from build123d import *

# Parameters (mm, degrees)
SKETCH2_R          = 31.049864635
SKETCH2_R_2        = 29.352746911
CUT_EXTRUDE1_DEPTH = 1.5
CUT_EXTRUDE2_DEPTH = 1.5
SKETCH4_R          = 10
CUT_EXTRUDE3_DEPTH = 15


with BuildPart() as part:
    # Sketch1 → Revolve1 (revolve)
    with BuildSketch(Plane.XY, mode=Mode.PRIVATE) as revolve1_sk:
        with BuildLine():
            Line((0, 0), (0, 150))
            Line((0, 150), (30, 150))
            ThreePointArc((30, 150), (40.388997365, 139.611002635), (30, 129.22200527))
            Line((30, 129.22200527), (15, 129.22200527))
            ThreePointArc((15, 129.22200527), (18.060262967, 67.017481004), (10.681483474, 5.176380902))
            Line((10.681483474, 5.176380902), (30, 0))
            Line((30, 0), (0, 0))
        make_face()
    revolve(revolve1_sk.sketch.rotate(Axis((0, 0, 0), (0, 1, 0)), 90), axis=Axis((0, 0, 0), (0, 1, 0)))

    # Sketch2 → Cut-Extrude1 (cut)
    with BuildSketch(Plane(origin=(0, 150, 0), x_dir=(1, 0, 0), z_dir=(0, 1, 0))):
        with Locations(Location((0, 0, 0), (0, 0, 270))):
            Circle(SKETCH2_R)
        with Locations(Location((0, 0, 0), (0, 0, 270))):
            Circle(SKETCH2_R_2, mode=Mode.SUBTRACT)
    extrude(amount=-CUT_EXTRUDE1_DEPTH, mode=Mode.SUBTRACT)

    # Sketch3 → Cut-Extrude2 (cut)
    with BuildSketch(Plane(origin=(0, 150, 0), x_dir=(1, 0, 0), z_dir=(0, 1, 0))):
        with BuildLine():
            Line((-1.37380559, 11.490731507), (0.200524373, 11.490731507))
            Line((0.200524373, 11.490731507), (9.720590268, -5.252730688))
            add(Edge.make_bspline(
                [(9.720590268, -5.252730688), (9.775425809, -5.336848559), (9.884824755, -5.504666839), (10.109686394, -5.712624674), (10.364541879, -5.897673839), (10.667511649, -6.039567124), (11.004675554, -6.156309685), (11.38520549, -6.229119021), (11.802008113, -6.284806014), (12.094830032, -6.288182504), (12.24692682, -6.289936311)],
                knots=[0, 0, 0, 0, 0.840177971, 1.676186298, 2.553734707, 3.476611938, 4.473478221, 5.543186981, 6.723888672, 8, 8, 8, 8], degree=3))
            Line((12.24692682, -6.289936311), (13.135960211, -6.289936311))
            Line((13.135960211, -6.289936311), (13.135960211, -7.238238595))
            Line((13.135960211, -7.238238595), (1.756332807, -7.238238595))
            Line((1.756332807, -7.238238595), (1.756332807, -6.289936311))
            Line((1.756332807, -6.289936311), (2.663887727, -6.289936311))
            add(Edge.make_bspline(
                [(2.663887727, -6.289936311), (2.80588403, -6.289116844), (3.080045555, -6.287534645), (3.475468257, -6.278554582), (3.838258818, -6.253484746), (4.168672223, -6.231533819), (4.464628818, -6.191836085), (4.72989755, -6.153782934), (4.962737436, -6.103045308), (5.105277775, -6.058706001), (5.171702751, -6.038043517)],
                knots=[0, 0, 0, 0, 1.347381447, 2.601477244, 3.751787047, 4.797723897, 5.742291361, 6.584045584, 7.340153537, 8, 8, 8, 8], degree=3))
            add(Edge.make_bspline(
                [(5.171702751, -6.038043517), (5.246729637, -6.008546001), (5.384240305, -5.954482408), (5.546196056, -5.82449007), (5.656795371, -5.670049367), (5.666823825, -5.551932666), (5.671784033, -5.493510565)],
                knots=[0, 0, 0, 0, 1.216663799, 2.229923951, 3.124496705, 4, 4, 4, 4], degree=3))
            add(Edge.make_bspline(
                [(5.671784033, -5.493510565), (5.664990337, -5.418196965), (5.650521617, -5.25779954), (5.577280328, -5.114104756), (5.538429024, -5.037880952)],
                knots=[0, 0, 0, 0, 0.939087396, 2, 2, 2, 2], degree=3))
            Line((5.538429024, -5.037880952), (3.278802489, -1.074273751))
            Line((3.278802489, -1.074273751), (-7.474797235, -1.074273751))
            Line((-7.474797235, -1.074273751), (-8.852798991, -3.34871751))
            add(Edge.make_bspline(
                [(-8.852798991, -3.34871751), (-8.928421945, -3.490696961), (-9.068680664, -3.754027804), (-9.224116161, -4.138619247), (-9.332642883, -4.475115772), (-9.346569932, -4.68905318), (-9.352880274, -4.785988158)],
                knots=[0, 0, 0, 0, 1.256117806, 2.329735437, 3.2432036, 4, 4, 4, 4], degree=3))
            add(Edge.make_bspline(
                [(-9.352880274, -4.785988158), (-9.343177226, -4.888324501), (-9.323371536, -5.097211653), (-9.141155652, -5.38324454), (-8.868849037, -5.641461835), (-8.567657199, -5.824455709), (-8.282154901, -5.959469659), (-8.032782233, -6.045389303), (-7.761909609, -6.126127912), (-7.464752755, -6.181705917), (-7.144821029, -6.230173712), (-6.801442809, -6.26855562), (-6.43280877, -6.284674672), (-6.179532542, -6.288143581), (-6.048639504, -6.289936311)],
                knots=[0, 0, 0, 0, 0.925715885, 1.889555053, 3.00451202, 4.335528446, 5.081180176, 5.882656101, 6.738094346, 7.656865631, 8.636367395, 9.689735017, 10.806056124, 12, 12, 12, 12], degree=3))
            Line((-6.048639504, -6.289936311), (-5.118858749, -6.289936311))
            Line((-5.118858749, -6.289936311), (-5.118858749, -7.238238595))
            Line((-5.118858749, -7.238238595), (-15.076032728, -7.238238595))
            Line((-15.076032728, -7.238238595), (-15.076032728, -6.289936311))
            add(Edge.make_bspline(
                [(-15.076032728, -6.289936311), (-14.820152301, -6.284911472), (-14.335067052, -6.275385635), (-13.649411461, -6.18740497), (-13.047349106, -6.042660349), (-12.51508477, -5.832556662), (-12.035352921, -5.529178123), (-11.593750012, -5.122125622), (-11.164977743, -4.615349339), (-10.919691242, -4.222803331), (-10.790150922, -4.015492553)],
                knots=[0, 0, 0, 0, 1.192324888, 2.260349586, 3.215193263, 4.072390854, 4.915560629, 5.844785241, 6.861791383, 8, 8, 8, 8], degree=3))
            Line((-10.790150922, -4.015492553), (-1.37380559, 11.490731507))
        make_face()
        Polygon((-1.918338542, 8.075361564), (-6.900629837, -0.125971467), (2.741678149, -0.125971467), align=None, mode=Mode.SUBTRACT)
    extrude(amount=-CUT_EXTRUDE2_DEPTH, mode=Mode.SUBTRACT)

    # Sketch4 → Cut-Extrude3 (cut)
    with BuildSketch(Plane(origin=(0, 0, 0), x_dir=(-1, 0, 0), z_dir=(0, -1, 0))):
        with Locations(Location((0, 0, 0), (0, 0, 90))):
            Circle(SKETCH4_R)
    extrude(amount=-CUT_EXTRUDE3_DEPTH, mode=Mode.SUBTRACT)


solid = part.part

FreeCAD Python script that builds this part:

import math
import FreeCAD as App
import Part
import Sketcher

V = App.Vector
Q = App.Units.Quantity

doc = App.newDocument("Part")
body = doc.addObject("PartDesign::Body", "Body")

# Sketch on XY plane
sketch1 = body.newObject("Sketcher::SketchObject", "Sketch")
sketch1.AttachmentSupport = (doc.getObject("XY_Plane"), [""])
sketch1.MapMode = "FlatFace"
sketch1.addGeometry([
    Part.LineSegment(V(0, 150, 0), V(0, 0, 0)),  # 0
    Part.LineSegment(V(0, 0, 0), V(30, 0, 0)),  # 1
    Part.LineSegment(V(30, 0, 0), V(10.681483, 5.176381, 0)),  # 2
    Part.ArcOfCircle(Part.Circle(V(-353.053529, 79.937413, 0), V(0, 0, 1), 371.338621), math.radians(-11.614654), math.radians(7.626882)),  # 3
    Part.LineSegment(V(15, 129.222005, 0), V(30, 129.222005, 0)),  # 4
    Part.ArcOfCircle(Part.Circle(V(30, 139.611003, 0), V(0, 0, 1), 10.388997), math.radians(-90), math.radians(90)),  # 5
    Part.LineSegment(V(30, 150, 0), V(0, 150, 0)),  # 6
], False)
sketch1.addConstraint([
    Sketcher.Constraint("Coincident", 0, 2, 1, 1),
    Sketcher.Constraint("Coincident", 1, 2, 2, 1),
    Sketcher.Constraint("Coincident", 2, 2, 3, 1),
    Sketcher.Constraint("Coincident", 3, 2, 4, 1),
    Sketcher.Constraint("Tangent", 4, 2, 5, 1),
    Sketcher.Constraint("Tangent", 5, 2, 6, 1),
    Sketcher.Constraint("Coincident", 6, 2, 0, 1),
    Sketcher.Constraint("Vertical", 0),
    Sketcher.Constraint("Horizontal", 1),
    Sketcher.Constraint("Horizontal", 4),
    Sketcher.Constraint("Horizontal", 6),
    Sketcher.Constraint("Coincident", 0, 2, -1, 1),
    Sketcher.Constraint("Vertical", 5, 3, 1, 2),
    Sketcher.Constraint("DistanceX", 1, 1, 1, 2, 30.0),
    Sketcher.Constraint("DistanceX", 4, 1, 4, 2, 15.0),
    Sketcher.Constraint("DistanceY", 0, 2, 0, 1, 150.0),
    Sketcher.Constraint("Angle", 2, Q("165 deg")),
    Sketcher.Constraint("Distance", 2, 20.0),
    Sketcher.Constraint("Radius", 3, 371.338621),
    Sketcher.Constraint("Radius", 5, 10.388997),
])
revolution = body.newObject("PartDesign::Revolution", "Revolution")
revolution.Profile = sketch1
revolution.ReferenceAxis = (sketch1, ["V_Axis"])
revolution.Angle = 360

# Sketch on XZ plane
sketch2 = body.newObject("Sketcher::SketchObject", "Sketch001")
sketch2.AttachmentSupport = (doc.getObject("XZ_Plane"), [""])
sketch2.MapMode = "FlatFace"
sketch2.AttachmentOffset = App.Placement(V(0, 0, -150), App.Rotation())
sketch2.addGeometry([
    Part.Circle(V(0, 0, 0), V(0, 0, 1), 31.049865),
    Part.Circle(V(0, 0, 0), V(0, 0, 1), 29.352747),
], False)
sketch2.addConstraint([
    Sketcher.Constraint("Coincident", 0, 3, -1, 1),
    Sketcher.Constraint("Coincident", 1, 3, -1, 1),
    Sketcher.Constraint("Diameter", 0, 62.099729),
    Sketcher.Constraint("Diameter", 1, 58.705494),
])
pocket1 = body.newObject("PartDesign::Pocket", "Pocket")
pocket1.Profile = sketch2
pocket1.Length = 1.5
pocket1.Reversed = True

# Sketch on XZ plane
sketch3 = body.newObject("Sketcher::SketchObject", "Sketch002")
sketch3.AttachmentSupport = (doc.getObject("XZ_Plane"), [""])
sketch3.MapMode = "FlatFace"
sketch3.AttachmentOffset = App.Placement(V(0, 0, -150), App.Rotation())
sketch3.addGeometry([
    Part.LineSegment(V(0.200524, -11.490732, 0), V(-1.373806, -11.490732, 0)),  # 0
    Part.LineSegment(V(-1.373806, -11.490732, 0), V(-10.790151, 4.015493, 0)),  # 1
    Part.BSplineCurve([V(-15.076033, 6.289936, 0), V(-14.820152, 6.284911, 0), V(-14.335067, 6.275386, 0), V(-13.649411, 6.187405, 0), V(-13.047349, 6.04266, 0), V(-12.515085, 5.832557, 0), V(-12.035353, 5.529178, 0), V(-11.59375, 5.122126, 0), V(-11.164978, 4.615349, 0), V(-10.919691, 4.222803, 0), V(-10.790151, 4.015493, 0)], [4, 1, 1, 1, 1, 1, 1, 1, 4], [0, 1.192324888, 2.260349586, 3.215193263, 4.072390854, 4.915560629, 5.844785241, 6.861791383, 8], False, 3, [1, 1, 1, 1, 1, 1, 1, 1, 1, 1, 1], False),  # 2
    Part.LineSegment(V(-15.076033, 6.289936, 0), V(-15.076033, 7.238239, 0)),  # 3
    Part.LineSegment(V(-15.076033, 7.238239, 0), V(-5.118859, 7.238239, 0)),  # 4
    Part.LineSegment(V(-5.118859, 7.238239, 0), V(-5.118859, 6.289936, 0)),  # 5
    Part.LineSegment(V(-5.118859, 6.289936, 0), V(-6.04864, 6.289936, 0)),  # 6
    Part.BSplineCurve([V(-9.35288, 4.785988, 0), V(-9.343177, 4.888325, 0), V(-9.323372, 5.097212, 0), V(-9.141156, 5.383245, 0), V(-8.868849, 5.641462, 0), V(-8.567657, 5.824456, 0), V(-8.282155, 5.95947, 0), V(-8.032782, 6.045389, 0), V(-7.76191, 6.126128, 0), V(-7.464753, 6.181706, 0), V(-7.144821, 6.230174, 0), V(-6.801443, 6.268556, 0), V(-6.432809, 6.284675, 0), V(-6.179533, 6.288144, 0), V(-6.04864, 6.289936, 0)], [4, 1, 1, 1, 1, 1, 1, 1, 1, 1, 1, 1, 4], [0, 0.925715885, 1.889555053, 3.00451202, 4.335528446, 5.081180176, 5.882656101, 6.738094346, 7.656865631, 8.636367395, 9.689735017, 10.806056124, 12], False, 3, [1, 1, 1, 1, 1, 1, 1, 1, 1, 1, 1, 1, 1, 1, 1], False),  # 7
    Part.BSplineCurve([V(-8.852799, 3.348718, 0), V(-8.928422, 3.490697, 0), V(-9.068681, 3.754028, 0), V(-9.224116, 4.138619, 0), V(-9.332643, 4.475116, 0), V(-9.34657, 4.689053, 0), V(-9.35288, 4.785988, 0)], [4, 1, 1, 1, 4], [0, 1.256117806, 2.329735437, 3.2432036, 4], False, 3, [1, 1, 1, 1, 1, 1, 1], False),  # 8
    Part.LineSegment(V(-8.852799, 3.348718, 0), V(-7.474797, 1.074274, 0)),  # 9
    Part.LineSegment(V(-7.474797, 1.074274, 0), V(3.278802, 1.074274, 0)),  # 10
    Part.LineSegment(V(3.278802, 1.074274, 0), V(5.538429, 5.037881, 0)),  # 11
    Part.BSplineCurve([V(5.671784, 5.493511, 0), V(5.66499, 5.418197, 0), V(5.650522, 5.2578, 0), V(5.57728, 5.114105, 0), V(5.538429, 5.037881, 0)], [4, 1, 4], [0, 0.939087396, 2], False, 3, [1, 1, 1, 1, 1], False),  # 12
    Part.BSplineCurve([V(5.171703, 6.038044, 0), V(5.24673, 6.008546, 0), V(5.38424, 5.954482, 0), V(5.546196, 5.82449, 0), V(5.656795, 5.670049, 0), V(5.666824, 5.551933, 0), V(5.671784, 5.493511, 0)], [4, 1, 1, 1, 4], [0, 1.216663799, 2.229923951, 3.124496705, 4], False, 3, [1, 1, 1, 1, 1, 1, 1], False),  # 13
    Part.BSplineCurve([V(2.663888, 6.289936, 0), V(2.805884, 6.289117, 0), V(3.080046, 6.287535, 0), V(3.475468, 6.278555, 0), V(3.838259, 6.253485, 0), V(4.168672, 6.231534, 0), V(4.464629, 6.191836, 0), V(4.729898, 6.153783, 0), V(4.962737, 6.103045, 0), V(5.105278, 6.058706, 0), V(5.171703, 6.038044, 0)], [4, 1, 1, 1, 1, 1, 1, 1, 4], [0, 1.347381447, 2.601477244, 3.751787047, 4.797723897, 5.742291361, 6.584045584, 7.340153537, 8], False, 3, [1, 1, 1, 1, 1, 1, 1, 1, 1, 1, 1], False),  # 14
    Part.LineSegment(V(2.663888, 6.289936, 0), V(1.756333, 6.289936, 0)),  # 15
    Part.LineSegment(V(1.756333, 6.289936, 0), V(1.756333, 7.238239, 0)),  # 16
    Part.LineSegment(V(1.756333, 7.238239, 0), V(13.13596, 7.238239, 0)),  # 17
    Part.LineSegment(V(13.13596, 7.238239, 0), V(13.13596, 6.289936, 0)),  # 18
    Part.LineSegment(V(13.13596, 6.289936, 0), V(12.246927, 6.289936, 0)),  # 19
    Part.BSplineCurve([V(9.72059, 5.252731, 0), V(9.775426, 5.336849, 0), V(9.884825, 5.504667, 0), V(10.109686, 5.712625, 0), V(10.364542, 5.897674, 0), V(10.667512, 6.039567, 0), V(11.004676, 6.15631, 0), V(11.385205, 6.229119, 0), V(11.802008, 6.284806, 0), V(12.09483, 6.288183, 0), V(12.246927, 6.289936, 0)], [4, 1, 1, 1, 1, 1, 1, 1, 4], [0, 0.840177971, 1.676186298, 2.553734707, 3.476611938, 4.473478221, 5.543186981, 6.723888672, 8], False, 3, [1, 1, 1, 1, 1, 1, 1, 1, 1, 1, 1], False),  # 20
    Part.LineSegment(V(9.72059, 5.252731, 0), V(0.200524, -11.490732, 0)),  # 21
    Part.LineSegment(V(-1.918339, -8.075362, 0), V(2.741678, 0.125971, 0)),  # 22
    Part.LineSegment(V(2.741678, 0.125971, 0), V(-6.90063, 0.125971, 0)),  # 23
    Part.LineSegment(V(-6.90063, 0.125971, 0), V(-1.918339, -8.075362, 0)),  # 24
], False)
sketch3.addConstraint([
    Sketcher.Constraint("Block", 2),
    Sketcher.Constraint("Block", 7),
    Sketcher.Constraint("Block", 8),
    Sketcher.Constraint("Block", 12),
    Sketcher.Constraint("Block", 13),
    Sketcher.Constraint("Block", 14),
    Sketcher.Constraint("Block", 20),
    Sketcher.Constraint("Coincident", 0, 2, 1, 1),
    Sketcher.Constraint("Coincident", 1, 2, 2, 2),
    Sketcher.Constraint("Coincident", 2, 1, 3, 1),
    Sketcher.Constraint("Coincident", 3, 2, 4, 1),
    Sketcher.Constraint("Coincident", 4, 2, 5, 1),
    Sketcher.Constraint("Coincident", 5, 2, 6, 1),
    Sketcher.Constraint("Coincident", 6, 2, 7, 2),
    Sketcher.Constraint("Coincident", 8, 1, 9, 1),
    Sketcher.Constraint("Coincident", 9, 2, 10, 1),
    Sketcher.Constraint("Coincident", 10, 2, 11, 1),
    Sketcher.Constraint("Coincident", 11, 2, 12, 2),
    Sketcher.Constraint("Coincident", 14, 1, 15, 1),
    Sketcher.Constraint("Coincident", 15, 2, 16, 1),
    Sketcher.Constraint("Coincident", 16, 2, 17, 1),
    Sketcher.Constraint("Coincident", 17, 2, 18, 1),
    Sketcher.Constraint("Coincident", 18, 2, 19, 1),
    Sketcher.Constraint("Coincident", 19, 2, 20, 2),
    Sketcher.Constraint("Coincident", 20, 1, 21, 1),
    Sketcher.Constraint("Coincident", 21, 2, 0, 1),
    Sketcher.Constraint("Coincident", 22, 2, 23, 1),
    Sketcher.Constraint("Coincident", 23, 2, 24, 1),
    Sketcher.Constraint("Coincident", 24, 2, 22, 1),
    Sketcher.Constraint("Horizontal", 0),
    Sketcher.Constraint("Vertical", 3),
    Sketcher.Constraint("Horizontal", 4),
    Sketcher.Constraint("Vertical", 5),
    Sketcher.Constraint("Horizontal", 6),
    Sketcher.Constraint("Horizontal", 10),
    Sketcher.Constraint("Horizontal", 15),
    Sketcher.Constraint("Vertical", 16),
    Sketcher.Constraint("Horizontal", 17),
    Sketcher.Constraint("Vertical", 18),
    Sketcher.Constraint("Horizontal", 19),
    Sketcher.Constraint("Horizontal", 23),
    Sketcher.Constraint("Horizontal", 4, 2, 16, 2),
    Sketcher.Constraint("DistanceX", 10, 1, 10, 2, 10.7536),
    Sketcher.Constraint("DistanceX", 0, 2, 0, 1, 1.57433),
    Sketcher.Constraint("DistanceX", 6, 2, 6, 1, 0.929781),
    Sketcher.Constraint("Distance", 9, 2.65932),
    Sketcher.Constraint("DistanceX", 15, 2, 15, 1, 0.907555),
    Sketcher.Constraint("DistanceX", 17, 1, 17, 2, 11.379627),
    Sketcher.Constraint("DistanceX", 23, 2, 23, 1, 9.642308),
    Sketcher.Constraint("DistanceY", 3, 1, 3, 2, 0.948302),
    Sketcher.Constraint("DistanceY", 0, 2, -1, 1, 11.490732),
    Sketcher.Constraint("DistanceX", -1, 1, 22, 2, 2.741678),
    Sketcher.Constraint("DistanceY", -1, 1, 22, 2, 0.125971),
    Sketcher.Constraint("DistanceX", 24, 2, -1, 1, 1.918339),
    Sketcher.Constraint("DistanceY", 24, 2, -1, 1, 8.075362),
    Sketcher.Constraint("DistanceY", 9, 2, 1, 2, 2.941219),
    Sketcher.Constraint("DistanceX", 0, 2, 10, 2, 4.652608),
])
pocket2 = body.newObject("PartDesign::Pocket", "Pocket001")
pocket2.Profile = sketch3
pocket2.Length = 1.5
pocket2.Reversed = True

# Sketch on XZ plane
sketch4 = body.newObject("Sketcher::SketchObject", "Sketch003")
sketch4.AttachmentSupport = (doc.getObject("XZ_Plane"), [""])
sketch4.MapMode = "FlatFace"
sketch4.addGeometry(Part.Circle(V(0, 0, 0), V(0, 0, 1), 10), False)
sketch4.addConstraint([
    Sketcher.Constraint("Coincident", 0, 3, -1, 1),
    Sketcher.Constraint("Diameter", 0, 20.0),
])
pocket3 = body.newObject("PartDesign::Pocket", "Pocket002")
pocket3.Profile = sketch4
pocket3.Length = 15

doc.recompute()
